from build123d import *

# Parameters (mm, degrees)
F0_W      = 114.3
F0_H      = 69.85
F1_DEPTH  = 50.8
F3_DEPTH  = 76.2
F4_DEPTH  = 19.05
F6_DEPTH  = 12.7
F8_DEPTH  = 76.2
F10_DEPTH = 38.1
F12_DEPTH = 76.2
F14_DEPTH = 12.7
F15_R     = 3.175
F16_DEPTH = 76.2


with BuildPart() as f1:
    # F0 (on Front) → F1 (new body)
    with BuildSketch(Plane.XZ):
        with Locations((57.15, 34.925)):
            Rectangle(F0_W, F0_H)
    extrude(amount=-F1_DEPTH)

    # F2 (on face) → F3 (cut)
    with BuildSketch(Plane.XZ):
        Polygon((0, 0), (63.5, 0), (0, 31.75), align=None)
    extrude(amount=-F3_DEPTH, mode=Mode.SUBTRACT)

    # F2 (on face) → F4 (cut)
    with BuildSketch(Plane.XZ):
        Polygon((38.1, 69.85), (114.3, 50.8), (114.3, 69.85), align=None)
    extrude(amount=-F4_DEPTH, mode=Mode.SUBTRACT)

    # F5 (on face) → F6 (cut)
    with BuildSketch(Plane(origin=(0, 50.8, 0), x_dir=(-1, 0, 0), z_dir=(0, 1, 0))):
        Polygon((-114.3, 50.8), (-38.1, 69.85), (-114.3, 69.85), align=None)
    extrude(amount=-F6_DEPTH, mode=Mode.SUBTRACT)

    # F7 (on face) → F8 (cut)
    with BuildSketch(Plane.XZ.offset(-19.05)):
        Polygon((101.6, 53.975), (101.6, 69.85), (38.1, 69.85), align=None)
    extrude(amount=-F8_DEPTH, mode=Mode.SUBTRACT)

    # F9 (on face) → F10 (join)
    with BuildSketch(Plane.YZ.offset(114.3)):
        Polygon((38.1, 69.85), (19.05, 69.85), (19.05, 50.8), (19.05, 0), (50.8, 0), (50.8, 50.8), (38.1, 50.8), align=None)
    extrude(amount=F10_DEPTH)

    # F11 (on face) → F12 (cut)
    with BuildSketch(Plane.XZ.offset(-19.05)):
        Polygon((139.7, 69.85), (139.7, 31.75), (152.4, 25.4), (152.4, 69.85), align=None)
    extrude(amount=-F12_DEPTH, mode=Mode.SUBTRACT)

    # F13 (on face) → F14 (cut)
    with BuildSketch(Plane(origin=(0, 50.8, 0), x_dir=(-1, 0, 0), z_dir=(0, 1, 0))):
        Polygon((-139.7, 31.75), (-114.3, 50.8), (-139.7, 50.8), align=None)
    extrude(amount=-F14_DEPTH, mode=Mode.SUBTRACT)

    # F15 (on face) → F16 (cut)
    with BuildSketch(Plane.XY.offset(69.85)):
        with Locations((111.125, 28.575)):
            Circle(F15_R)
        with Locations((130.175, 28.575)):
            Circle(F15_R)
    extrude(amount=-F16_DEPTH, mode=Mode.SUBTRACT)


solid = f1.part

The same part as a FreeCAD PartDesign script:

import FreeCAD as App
import Part
import Sketcher
from FreeCAD import Vector
Q = App.Units.Quantity


def add_polygon(sketch, points):
    """Adds a closed chain of lines whose ends are joined by coincident constraints."""
    first, n = sketch.GeometryCount, len(points)
    for a, b in zip(points, points[1:] + points[:1]):
        sketch.addGeometry(Part.LineSegment(App.Vector(*a, 0), App.Vector(*b, 0)), False)
    for i in range(n):
        sketch.addConstraint(Sketcher.Constraint("Coincident", first + i, 2, first + (i + 1) % n, 1))

doc = App.newDocument("Part")
body = doc.addObject("PartDesign::Body", "Body")

# Sketch on XZ plane
sketch1 = body.newObject("Sketcher::SketchObject", "Sketch")
sketch1.AttachmentSupport = (doc.getObject("XZ_Plane"), [""])
sketch1.MapMode = "FlatFace"
add_polygon(sketch1, [(0, 70), (0, 0), (114, 0), (114, 70)])  # lines 0-3
sketch1.addConstraint([
    Sketcher.Constraint("Vertical", 0),
    Sketcher.Constraint("Horizontal", 1),
    Sketcher.Constraint("Vertical", 2),
    Sketcher.Constraint("Horizontal", 3),
    Sketcher.Constraint("Coincident", 0, 2, -1, 1),
    Sketcher.Constraint("DistanceX", 1, 1, 1, 2, Q("4.5 in")),
    Sketcher.Constraint("DistanceY", 0, 2, 0, 1, Q("2.75 in")),
])
pad1 = body.newObject("PartDesign::Pad", "Pad")
pad1.Profile = sketch1
pad1.Length = Q("2 in")
pad1.Reversed = True

# Sketch on XZ plane
sketch2 = body.newObject("Sketcher::SketchObject", "Sketch001")
sketch2.AttachmentSupport = (doc.getObject("XZ_Plane"), [""])
sketch2.MapMode = "FlatFace"
add_polygon(sketch2, [(0, 0), (64, 0), (0, 32)])  # lines 0-2
sketch2.addConstraint([
    Sketcher.Constraint("Horizontal", 0),
    Sketcher.Constraint("Vertical", 2),
    Sketcher.Constraint("Coincident", 2, 2, -1, 1),
    Sketcher.Constraint("DistanceX", 0, 1, 0, 2, Q("2.5 in")),
    Sketcher.Constraint("DistanceY", 2, 2, 2, 1, Q("1.25 in")),
])
pocket1 = body.newObject("PartDesign::Pocket", "Pocket")
pocket1.Profile = sketch2
pocket1.Length = Q("3 in")

# Sketch on XZ plane
sketch3 = body.newObject("Sketcher::SketchObject", "Sketch002")
sketch3.AttachmentSupport = (doc.getObject("XZ_Plane"), [""])
sketch3.MapMode = "FlatFace"
add_polygon(sketch3, [(38, 70), (114, 51), (114, 70)])  # lines 0-2
sketch3.addConstraint([
    Sketcher.Constraint("Vertical", 1),
    Sketcher.Constraint("Horizontal", 2),
    Sketcher.Constraint("DistanceX", 2, 2, 2, 1, Q("3 in")),
    Sketcher.Constraint("DistanceY", -1, 1, 0, 2, Q("2 in")),
    Sketcher.Constraint("DistanceY", 1, 1, 1, 2, Q("0.75 in")),
    Sketcher.Constraint("DistanceX", -1, 1, 0, 2, Q("4.5 in")),
])
pocket2 = body.newObject("PartDesign::Pocket", "Pocket001")
pocket2.Profile = sketch3
pocket2.Length = Q("0.75 in")

# Sketch on XZ plane
sketch4 = body.newObject("Sketcher::SketchObject", "Sketch003")
sketch4.AttachmentSupport = (doc.getObject("XZ_Plane"), [""])
sketch4.MapMode = "FlatFace"
sketch4.AttachmentOffset = App.Placement(Vector(0, 0, -2 * 25.4), App.Rotation())
add_polygon(sketch4, [(114, 51), (38, 70), (114, 70)])  # lines 0-2
sketch4.addConstraint([
    Sketcher.Constraint("Horizontal", 1),
    Sketcher.Constraint("Vertical", 2),
    Sketcher.Constraint("DistanceX", 1, 1, 1, 2, Q("3 in")),
    Sketcher.Constraint("DistanceY", -1, 1, 2, 2, Q("2 in")),
    Sketcher.Constraint("DistanceY", 2, 2, 2, 1, Q("0.75 in")),
    Sketcher.Constraint("DistanceX", -1, 1, 0, 2, Q("1.5 in")),
])
pocket3 = body.newObject("PartDesign::Pocket", "Pocket002")
pocket3.Profile = sketch4
pocket3.Length = Q("0.5 in")
pocket3.Reversed = True

# Sketch on XZ plane
sketch5 = body.newObject("Sketcher::SketchObject", "Sketch004")
sketch5.AttachmentSupport = (doc.getObject("XZ_Plane"), [""])
sketch5.MapMode = "FlatFace"
sketch5.AttachmentOffset = App.Placement(Vector(0, 0, -0.75 * 25.4), App.Rotation())
add_polygon(sketch5, [(102, 54), (102, 70), (38, 70)])  # lines 0-2
sketch5.addConstraint([
    Sketcher.Constraint("Vertical", 0),
    Sketcher.Constraint("Horizontal", 1),
    Sketcher.Constraint("DistanceX", 1, 2, 1, 1, Q("2.5 in")),
    Sketcher.Constraint("DistanceX", -1, 1, 0, 2, Q("4 in")),
    Sketcher.Constraint("DistanceY", 0, 1, 0, 2, Q("0.625 in")),
    Sketcher.Constraint("DistanceY", -1, 1, 0, 2, Q("2.75 in")),
])
pocket4 = body.newObject("PartDesign::Pocket", "Pocket003")
pocket4.Profile = sketch5
pocket4.Length = Q("3 in")

# Sketch on YZ plane
sketch6 = body.newObject("Sketcher::SketchObject", "Sketch005")
sketch6.AttachmentSupport = (doc.getObject("YZ_Plane"), [""])
sketch6.MapMode = "FlatFace"
sketch6.AttachmentOffset = App.Placement(Vector(0, 0, 4.5 * 25.4), App.Rotation())
add_polygon(sketch6, [(38, 70), (19, 70), (19, 0), (51, 0), (51, 51), (38, 51)])  # lines 0-5
sketch6.addConstraint([
    Sketcher.Constraint("Horizontal", 0),
    Sketcher.Constraint("Vertical", 1),
    Sketcher.Constraint("Horizontal", 2),
    Sketcher.Constraint("Vertical", 3),
    Sketcher.Constraint("Horizontal", 4),
    Sketcher.Constraint("Vertical", 5),
    Sketcher.Constraint("PointOnObject", 1, 2, -1),
    Sketcher.Constraint("Equal", 0, 5),
    Sketcher.Constraint("DistanceY", 3, 1, 3, 2, Q("2 in")),
    Sketcher.Constraint("DistanceX", 4, 2, 4, 1, Q("0.5 in")),
    Sketcher.Constraint("DistanceX", -1, 1, 2, 2, Q("2 in")),
    Sketcher.Constraint("DistanceX", 0, 2, 0, 1, Q("0.75 in")),
])
pad2 = body.newObject("PartDesign::Pad", "Pad001")
pad2.Profile = sketch6
pad2.Length = Q("1.5 in")

# Sketch on XZ plane
sketch7 = body.newObject("Sketcher::SketchObject", "Sketch006")
sketch7.AttachmentSupport = (doc.getObject("XZ_Plane"), [""])
sketch7.MapMode = "FlatFace"
sketch7.AttachmentOffset = App.Placement(Vector(0, 0, -0.75 * 25.4), App.Rotation())
add_polygon(sketch7, [(140, 70), (140, 32), (152, 25), (152, 70)])  # lines 0-3
sketch7.addConstraint([
    Sketcher.Constraint("Vertical", 0),
    Sketcher.Constraint("Vertical", 2),
    Sketcher.Constraint("Horizontal", 3),
    Sketcher.Constraint("DistanceX", 3, 2, 3, 1, Q("0.5 in")),
    Sketcher.Constraint("DistanceY", 0, 2, 0, 1, Q("1.5 in")),
    Sketcher.Constraint("DistanceX", -1, 1, 1, 2, Q("6 in")),
    Sketcher.Constraint("DistanceY", -1, 1, 1, 2, Q("1 in")),
    Sketcher.Constraint("DistanceY", 2, 1, 2, 2, Q("1.75 in")),
])
pocket5 = body.newObject("PartDesign::Pocket", "Pocket004")
pocket5.Profile = sketch7
pocket5.Length = Q("3 in")

# Sketch on XZ plane
sketch8 = body.newObject("Sketcher::SketchObject", "Sketch007")
sketch8.AttachmentSupport = (doc.getObject("XZ_Plane"), [""])
sketch8.MapMode = "FlatFace"
sketch8.AttachmentOffset = App.Placement(Vector(0, 0, -2 * 25.4), App.Rotation())
add_polygon(sketch8, [(140, 32), (114, 51), (140, 51)])  # lines 0-2
sketch8.addConstraint([
    Sketcher.Constraint("Horizontal", 1),
    Sketcher.Constraint("Vertical", 2),
    Sketcher.Constraint("DistanceX", 1, 1, 1, 2, Q("1 in")),
    Sketcher.Constraint("DistanceY", -1, 1, 0, 2, Q("2 in")),
    Sketcher.Constraint("DistanceY", 2, 2, 2, 1, Q("0.75 in")),
    Sketcher.Constraint("DistanceX", -1, 1, 0, 2, Q("4.5 in")),
])
pocket6 = body.newObject("PartDesign::Pocket", "Pocket005")
pocket6.Profile = sketch8
pocket6.Length = Q("0.5 in")
pocket6.Reversed = True

# Sketch on XY plane
sketch9 = body.newObject("Sketcher::SketchObject", "Sketch008")
sketch9.AttachmentSupport = (doc.getObject("XY_Plane"), [""])
sketch9.MapMode = "FlatFace"
sketch9.AttachmentOffset = App.Placement(Vector(0, 0, 2.75 * 25.4), App.Rotation())
sketch9.addGeometry([
    Part.Circle(Vector(111.1, 28.6, 0), Vector(0, 0, 1), 3.2),
    Part.Circle(Vector(130.2, 28.6, 0), Vector(0, 0, 1), 3.2),
], False)
sketch9.addConstraint([
    Sketcher.Constraint("Equal", 0, 1),
    Sketcher.Constraint("Horizontal", 0, 3, 1, 3),
    Sketcher.Constraint("Diameter", 0, Q("0.25 in")),
    Sketcher.Constraint("DistanceX", 0, 3, 1, 3, Q("0.75 in")),
    Sketcher.Constraint("DistanceX", -1, 1, 0, 3, Q("4.375 in")),
    Sketcher.Constraint("DistanceY", -1, 1, 0, 3, Q("1.125 in")),
])
pocket7 = body.newObject("PartDesign::Pocket", "Pocket006")
pocket7.Profile = sketch9
pocket7.Length = Q("3 in")

doc.recompute()
